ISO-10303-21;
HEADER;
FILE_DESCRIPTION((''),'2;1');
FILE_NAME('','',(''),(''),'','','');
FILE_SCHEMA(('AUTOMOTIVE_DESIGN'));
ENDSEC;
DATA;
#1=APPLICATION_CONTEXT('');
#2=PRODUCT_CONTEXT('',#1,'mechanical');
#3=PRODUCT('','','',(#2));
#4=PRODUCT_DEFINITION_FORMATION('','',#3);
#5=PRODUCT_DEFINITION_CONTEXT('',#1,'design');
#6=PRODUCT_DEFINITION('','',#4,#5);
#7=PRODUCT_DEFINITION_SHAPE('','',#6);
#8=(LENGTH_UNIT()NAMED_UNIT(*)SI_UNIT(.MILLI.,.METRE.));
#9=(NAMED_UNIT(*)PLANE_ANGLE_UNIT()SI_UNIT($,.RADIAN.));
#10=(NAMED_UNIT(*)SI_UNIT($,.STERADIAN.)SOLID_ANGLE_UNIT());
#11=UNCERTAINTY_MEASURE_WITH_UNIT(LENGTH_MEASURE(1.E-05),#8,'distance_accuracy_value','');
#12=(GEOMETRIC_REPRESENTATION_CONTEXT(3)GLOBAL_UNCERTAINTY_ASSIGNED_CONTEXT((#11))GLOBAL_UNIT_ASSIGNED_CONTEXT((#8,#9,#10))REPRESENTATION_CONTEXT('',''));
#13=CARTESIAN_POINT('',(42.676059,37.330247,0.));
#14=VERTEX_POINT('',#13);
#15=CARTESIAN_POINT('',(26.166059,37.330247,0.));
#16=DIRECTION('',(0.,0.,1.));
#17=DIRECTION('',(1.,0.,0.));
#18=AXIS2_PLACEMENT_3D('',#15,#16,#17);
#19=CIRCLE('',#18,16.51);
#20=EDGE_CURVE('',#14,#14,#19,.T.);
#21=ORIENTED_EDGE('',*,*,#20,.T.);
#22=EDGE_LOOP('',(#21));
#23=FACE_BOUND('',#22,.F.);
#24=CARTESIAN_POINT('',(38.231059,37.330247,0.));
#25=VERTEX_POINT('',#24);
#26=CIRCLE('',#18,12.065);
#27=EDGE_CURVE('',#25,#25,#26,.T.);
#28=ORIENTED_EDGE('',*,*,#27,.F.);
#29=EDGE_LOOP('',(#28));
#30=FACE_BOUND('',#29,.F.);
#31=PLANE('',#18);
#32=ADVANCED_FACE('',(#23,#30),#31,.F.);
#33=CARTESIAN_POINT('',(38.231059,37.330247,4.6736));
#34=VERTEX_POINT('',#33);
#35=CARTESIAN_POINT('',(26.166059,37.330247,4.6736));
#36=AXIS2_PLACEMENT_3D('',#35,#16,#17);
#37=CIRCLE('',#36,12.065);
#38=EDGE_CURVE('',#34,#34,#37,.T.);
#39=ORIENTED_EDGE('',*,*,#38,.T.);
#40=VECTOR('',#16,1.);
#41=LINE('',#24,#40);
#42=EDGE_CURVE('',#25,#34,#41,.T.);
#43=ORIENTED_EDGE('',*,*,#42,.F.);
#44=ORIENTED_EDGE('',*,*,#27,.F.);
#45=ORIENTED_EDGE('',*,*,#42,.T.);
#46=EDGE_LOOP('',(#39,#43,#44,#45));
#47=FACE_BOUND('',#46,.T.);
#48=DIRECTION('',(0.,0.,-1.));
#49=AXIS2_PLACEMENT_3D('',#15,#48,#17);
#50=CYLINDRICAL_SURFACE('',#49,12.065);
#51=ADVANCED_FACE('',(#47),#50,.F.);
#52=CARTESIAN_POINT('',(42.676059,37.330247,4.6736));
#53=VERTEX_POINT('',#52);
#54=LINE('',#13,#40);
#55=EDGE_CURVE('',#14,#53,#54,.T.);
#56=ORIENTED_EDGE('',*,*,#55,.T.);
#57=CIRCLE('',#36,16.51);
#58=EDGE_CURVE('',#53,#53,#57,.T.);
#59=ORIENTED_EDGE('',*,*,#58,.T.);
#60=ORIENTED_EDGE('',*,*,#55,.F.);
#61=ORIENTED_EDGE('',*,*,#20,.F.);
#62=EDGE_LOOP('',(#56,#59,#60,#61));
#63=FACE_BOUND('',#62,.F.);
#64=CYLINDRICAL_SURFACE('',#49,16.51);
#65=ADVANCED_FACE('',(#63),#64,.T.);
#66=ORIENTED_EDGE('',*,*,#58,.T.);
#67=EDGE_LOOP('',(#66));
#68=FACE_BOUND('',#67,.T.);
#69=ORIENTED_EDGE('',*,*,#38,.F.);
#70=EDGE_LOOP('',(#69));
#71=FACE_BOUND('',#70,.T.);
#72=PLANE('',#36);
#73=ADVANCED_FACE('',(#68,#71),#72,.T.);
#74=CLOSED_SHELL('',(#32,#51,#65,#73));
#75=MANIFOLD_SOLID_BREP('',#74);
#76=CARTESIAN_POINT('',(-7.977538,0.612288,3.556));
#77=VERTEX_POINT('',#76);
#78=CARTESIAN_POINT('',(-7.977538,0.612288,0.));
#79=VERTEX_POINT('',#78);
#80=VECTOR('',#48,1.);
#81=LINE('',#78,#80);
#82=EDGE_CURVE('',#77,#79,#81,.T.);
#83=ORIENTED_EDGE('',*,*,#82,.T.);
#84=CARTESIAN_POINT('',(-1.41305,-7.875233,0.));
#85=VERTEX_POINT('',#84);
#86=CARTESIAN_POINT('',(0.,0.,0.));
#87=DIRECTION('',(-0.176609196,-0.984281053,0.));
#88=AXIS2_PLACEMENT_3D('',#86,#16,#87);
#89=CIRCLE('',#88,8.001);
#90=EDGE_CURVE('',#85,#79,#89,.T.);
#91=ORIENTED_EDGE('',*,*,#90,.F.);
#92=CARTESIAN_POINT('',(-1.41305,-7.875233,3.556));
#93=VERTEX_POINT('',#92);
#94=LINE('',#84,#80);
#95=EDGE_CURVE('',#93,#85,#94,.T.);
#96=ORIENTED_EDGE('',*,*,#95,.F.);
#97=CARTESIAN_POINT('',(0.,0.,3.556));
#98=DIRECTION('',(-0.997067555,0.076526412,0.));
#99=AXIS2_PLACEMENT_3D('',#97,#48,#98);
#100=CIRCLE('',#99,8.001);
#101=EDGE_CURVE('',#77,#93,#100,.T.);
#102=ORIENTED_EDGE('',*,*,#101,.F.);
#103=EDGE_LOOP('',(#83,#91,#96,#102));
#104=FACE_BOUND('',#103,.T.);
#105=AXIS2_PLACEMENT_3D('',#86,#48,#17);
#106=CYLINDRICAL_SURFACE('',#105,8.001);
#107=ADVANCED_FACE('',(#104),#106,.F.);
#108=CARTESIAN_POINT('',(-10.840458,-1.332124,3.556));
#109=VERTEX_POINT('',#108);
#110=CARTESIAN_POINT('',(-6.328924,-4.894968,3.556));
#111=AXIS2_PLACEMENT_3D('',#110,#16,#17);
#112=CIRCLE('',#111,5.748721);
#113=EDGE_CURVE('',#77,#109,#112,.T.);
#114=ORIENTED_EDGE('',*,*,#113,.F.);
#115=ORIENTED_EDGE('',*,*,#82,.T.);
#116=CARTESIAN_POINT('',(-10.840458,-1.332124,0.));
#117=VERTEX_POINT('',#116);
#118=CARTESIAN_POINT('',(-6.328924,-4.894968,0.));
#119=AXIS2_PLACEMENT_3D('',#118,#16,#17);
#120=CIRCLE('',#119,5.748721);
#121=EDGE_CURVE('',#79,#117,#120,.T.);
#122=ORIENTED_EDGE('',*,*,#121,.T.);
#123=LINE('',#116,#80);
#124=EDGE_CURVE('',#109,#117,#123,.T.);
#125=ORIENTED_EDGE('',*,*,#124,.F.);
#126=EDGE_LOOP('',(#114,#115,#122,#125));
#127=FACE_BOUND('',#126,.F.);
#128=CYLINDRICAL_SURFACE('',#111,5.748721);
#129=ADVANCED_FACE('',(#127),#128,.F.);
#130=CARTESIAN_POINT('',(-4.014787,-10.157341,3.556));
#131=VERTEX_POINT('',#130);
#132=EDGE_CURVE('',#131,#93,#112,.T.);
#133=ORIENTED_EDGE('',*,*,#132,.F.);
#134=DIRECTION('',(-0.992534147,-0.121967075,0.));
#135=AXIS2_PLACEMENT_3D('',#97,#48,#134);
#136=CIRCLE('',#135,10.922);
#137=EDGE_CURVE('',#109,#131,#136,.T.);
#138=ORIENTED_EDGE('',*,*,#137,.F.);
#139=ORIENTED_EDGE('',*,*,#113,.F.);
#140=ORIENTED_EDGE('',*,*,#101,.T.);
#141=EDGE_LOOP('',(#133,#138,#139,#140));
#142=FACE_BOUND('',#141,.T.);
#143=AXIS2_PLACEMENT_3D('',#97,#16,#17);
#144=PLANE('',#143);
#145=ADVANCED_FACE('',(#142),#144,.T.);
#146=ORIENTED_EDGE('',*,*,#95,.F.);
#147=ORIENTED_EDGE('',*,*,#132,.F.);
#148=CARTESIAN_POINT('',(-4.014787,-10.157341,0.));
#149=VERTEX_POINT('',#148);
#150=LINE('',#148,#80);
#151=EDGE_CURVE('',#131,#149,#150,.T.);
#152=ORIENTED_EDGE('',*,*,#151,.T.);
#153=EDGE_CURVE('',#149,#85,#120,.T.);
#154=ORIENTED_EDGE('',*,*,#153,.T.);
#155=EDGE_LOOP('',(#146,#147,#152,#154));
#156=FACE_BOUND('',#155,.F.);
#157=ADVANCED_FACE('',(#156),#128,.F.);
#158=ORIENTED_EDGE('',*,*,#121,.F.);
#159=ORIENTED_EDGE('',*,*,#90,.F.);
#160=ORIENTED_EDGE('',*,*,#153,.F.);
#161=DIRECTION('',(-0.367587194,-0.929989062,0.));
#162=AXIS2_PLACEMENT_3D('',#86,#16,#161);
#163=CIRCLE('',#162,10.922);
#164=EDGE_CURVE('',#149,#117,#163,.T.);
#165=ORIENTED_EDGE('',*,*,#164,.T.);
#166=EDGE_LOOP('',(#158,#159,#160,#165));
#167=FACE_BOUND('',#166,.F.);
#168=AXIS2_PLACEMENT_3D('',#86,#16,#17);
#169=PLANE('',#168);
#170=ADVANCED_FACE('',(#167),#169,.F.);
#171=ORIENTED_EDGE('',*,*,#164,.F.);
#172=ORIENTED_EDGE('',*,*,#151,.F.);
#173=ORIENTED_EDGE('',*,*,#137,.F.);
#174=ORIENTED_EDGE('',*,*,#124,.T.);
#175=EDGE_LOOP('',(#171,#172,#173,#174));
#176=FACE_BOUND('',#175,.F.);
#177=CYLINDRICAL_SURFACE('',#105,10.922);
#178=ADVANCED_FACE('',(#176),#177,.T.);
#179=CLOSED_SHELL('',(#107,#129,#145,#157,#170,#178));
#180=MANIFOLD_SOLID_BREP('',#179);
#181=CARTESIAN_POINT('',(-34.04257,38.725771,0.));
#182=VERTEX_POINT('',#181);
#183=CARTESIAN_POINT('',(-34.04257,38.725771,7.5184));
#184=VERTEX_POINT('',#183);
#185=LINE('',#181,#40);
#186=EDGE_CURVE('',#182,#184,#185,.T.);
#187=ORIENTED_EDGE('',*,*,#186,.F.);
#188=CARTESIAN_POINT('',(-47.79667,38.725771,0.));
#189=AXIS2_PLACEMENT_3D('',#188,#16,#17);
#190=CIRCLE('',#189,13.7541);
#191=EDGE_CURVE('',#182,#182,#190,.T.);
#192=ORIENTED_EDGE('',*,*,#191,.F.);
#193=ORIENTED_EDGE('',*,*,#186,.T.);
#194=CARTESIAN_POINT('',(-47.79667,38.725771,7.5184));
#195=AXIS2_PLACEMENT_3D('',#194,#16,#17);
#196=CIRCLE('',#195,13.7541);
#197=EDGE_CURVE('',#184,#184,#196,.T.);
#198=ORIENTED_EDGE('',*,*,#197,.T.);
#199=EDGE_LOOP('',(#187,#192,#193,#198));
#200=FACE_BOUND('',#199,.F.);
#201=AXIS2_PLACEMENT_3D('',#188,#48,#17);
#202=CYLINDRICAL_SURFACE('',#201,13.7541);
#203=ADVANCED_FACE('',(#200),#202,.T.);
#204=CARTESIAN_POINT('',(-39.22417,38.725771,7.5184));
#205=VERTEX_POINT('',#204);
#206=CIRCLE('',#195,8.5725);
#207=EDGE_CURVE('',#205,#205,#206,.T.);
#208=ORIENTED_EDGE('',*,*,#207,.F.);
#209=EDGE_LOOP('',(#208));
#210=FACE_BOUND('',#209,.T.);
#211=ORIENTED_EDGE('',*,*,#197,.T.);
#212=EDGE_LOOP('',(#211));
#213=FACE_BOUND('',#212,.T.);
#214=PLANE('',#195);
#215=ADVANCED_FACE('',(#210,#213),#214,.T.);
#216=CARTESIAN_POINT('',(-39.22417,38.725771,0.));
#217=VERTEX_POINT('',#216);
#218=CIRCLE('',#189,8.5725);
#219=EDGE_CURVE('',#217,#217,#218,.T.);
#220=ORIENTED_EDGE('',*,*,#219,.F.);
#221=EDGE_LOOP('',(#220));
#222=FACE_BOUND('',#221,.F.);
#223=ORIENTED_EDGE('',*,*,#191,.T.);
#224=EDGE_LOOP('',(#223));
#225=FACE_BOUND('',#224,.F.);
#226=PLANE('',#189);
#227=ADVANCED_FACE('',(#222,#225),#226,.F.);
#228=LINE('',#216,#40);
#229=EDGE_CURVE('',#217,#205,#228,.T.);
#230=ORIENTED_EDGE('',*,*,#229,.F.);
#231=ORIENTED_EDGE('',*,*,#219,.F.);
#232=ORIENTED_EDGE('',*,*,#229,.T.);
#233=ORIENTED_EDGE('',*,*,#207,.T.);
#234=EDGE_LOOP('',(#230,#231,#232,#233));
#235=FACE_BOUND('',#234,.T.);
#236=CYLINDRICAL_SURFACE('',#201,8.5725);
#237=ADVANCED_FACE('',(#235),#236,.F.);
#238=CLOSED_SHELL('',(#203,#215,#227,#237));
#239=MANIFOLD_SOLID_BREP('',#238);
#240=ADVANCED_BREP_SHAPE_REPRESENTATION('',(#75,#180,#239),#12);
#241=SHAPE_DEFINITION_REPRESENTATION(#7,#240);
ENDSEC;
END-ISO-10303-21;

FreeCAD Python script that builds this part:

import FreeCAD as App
import Part
import Sketcher
from FreeCAD import Vector
Q = App.Units.Quantity

doc = App.newDocument("Part")
body = doc.addObject("PartDesign::Body", "Body")

sketch1 = body.newObject("Sketcher::SketchObject", "Sketch")
sketch1.AttachmentSupport = (doc.getObject("XY_Plane"), [""])
sketch1.MapMode = "FlatFace"
sketch1.addGeometry(Part.Circle(Vector(0, 0, 0), Vector(0, 0, 1), 11), False)
sketch1.addGeometry(Part.Circle(Vector(0, 0, 0), Vector(0, 0, 1), 8), False)
sketch1.addConstraint(Sketcher.Constraint("Coincident", 0, 3, -1, 1))
sketch1.addConstraint(Sketcher.Constraint("Coincident", 1, 3, -1, 1))
sketch1.addConstraint(Sketcher.Constraint("Diameter", 0, Q("0.86 in")))
sketch1.addConstraint(Sketcher.Constraint("Diameter", 1, Q("0.63 in")))
pad1 = body.newObject("PartDesign::Pad", "Pad")
pad1.Profile = sketch1
pad1.Length = Q("0.14 in")

sketch2 = body.newObject("Sketcher::SketchObject", "Sketch001")
sketch2.AttachmentSupport = (doc.getObject("XY_Plane"), [""])
sketch2.MapMode = "FlatFace"
sketch2.AttachmentOffset = App.Placement(Vector(0, 0, 0.14 * 25.4), App.Rotation())
sketch2.addGeometry(Part.Circle(Vector(-6, -5, 0), Vector(0, 0, 1), 6), False)
sketch2.addConstraint(Sketcher.Constraint("Diameter", 0, Q("11.497442 mm")))
sketch2.addConstraint(Sketcher.Constraint("DistanceY", 0, 3, -1, 1, Q("4.894968 mm")))
sketch2.addConstraint(Sketcher.Constraint("DistanceX", 0, 3, -1, 1, Q("6.328924 mm")))
pocket1 = body.newObject("PartDesign::Pocket", "Pocket")
pocket1.Profile = sketch2
pocket1.Length = Q("0.185 in")
body2 = doc.addObject("PartDesign::Body", "Body001")

sketch3 = body2.newObject("Sketcher::SketchObject", "Sketch002")
sketch3.AttachmentSupport = (doc.getObject("XY_Plane001"), [""])
sketch3.MapMode = "FlatFace"
sketch3.addGeometry(Part.Circle(Vector(-48, 39, 0), Vector(0, 0, 1), 14), False)
sketch3.addGeometry(Part.Circle(Vector(-48, 39, 0), Vector(0, 0, 1), 9), False)
sketch3.addConstraint(Sketcher.Constraint("Coincident", 1, 3, 0, 3))
sketch3.addConstraint(Sketcher.Constraint("Diameter", 0, Q("1.083 in")))
sketch3.addConstraint(Sketcher.Constraint("Diameter", 1, Q("0.675 in")))
sketch3.addConstraint(Sketcher.Constraint("DistanceX", 0, 3, -1, 1, Q("47.79667 mm")))
sketch3.addConstraint(Sketcher.Constraint("DistanceY", -1, 1, 0, 3, Q("38.725771 mm")))
pad2 = body2.newObject("PartDesign::Pad", "Pad001")
pad2.Profile = sketch3
pad2.Length = Q("0.296 in")
body3 = doc.addObject("PartDesign::Body", "Body002")

sketch4 = body3.newObject("Sketcher::SketchObject", "Sketch003")
sketch4.AttachmentSupport = (doc.getObject("XY_Plane002"), [""])
sketch4.MapMode = "FlatFace"
sketch4.addGeometry(Part.Circle(Vector(26, 37, 0), Vector(0, 0, 1), 17), False)
sketch4.addGeometry(Part.Circle(Vector(26, 37, 0), Vector(0, 0, 1), 12), False)
sketch4.addConstraint(Sketcher.Constraint("Coincident", 1, 3, 0, 3))
sketch4.addConstraint(Sketcher.Constraint("Diameter", 0, Q("1.3 in")))
sketch4.addConstraint(Sketcher.Constraint("Diameter", 1, Q("0.95 in")))
sketch4.addConstraint(Sketcher.Constraint("DistanceX", -1, 1, 0, 3, Q("26.166059 mm")))
sketch4.addConstraint(Sketcher.Constraint("DistanceY", -1, 1, 0, 3, Q("37.330247 mm")))
pad3 = body3.newObject("PartDesign::Pad", "Pad002")
pad3.Profile = sketch4
pad3.Length = Q("0.184 in")

doc.recompute()
